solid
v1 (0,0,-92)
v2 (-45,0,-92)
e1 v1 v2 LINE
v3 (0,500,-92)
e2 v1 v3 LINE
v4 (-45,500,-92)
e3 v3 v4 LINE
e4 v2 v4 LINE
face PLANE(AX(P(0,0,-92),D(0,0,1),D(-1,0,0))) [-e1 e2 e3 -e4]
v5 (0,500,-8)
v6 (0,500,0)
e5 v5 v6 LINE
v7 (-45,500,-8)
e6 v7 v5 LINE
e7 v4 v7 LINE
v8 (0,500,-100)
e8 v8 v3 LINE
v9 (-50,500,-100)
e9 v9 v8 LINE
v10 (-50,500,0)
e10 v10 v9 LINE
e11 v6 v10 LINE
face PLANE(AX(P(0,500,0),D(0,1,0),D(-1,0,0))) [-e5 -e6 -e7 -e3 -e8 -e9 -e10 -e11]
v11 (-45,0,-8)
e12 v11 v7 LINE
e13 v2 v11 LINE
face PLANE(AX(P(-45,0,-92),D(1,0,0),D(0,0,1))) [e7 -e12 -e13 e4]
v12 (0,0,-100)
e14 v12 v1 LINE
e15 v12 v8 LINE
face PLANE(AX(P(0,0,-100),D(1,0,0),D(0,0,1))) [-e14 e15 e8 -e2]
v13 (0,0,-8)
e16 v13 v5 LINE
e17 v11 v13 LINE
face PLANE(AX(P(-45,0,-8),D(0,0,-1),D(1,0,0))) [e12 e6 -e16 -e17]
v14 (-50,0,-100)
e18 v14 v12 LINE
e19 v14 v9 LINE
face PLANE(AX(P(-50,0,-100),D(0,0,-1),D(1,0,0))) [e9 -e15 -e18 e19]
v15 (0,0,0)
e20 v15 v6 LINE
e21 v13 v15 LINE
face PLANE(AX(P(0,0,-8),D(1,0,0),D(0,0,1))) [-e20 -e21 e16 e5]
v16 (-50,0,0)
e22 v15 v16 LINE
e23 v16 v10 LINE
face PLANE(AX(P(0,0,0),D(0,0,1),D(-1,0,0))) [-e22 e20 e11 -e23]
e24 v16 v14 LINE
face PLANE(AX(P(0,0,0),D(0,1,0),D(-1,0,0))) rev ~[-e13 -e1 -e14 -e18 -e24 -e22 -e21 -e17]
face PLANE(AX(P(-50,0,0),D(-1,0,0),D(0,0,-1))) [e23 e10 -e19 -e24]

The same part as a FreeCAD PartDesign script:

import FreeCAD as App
import Part
import Sketcher
from FreeCAD import Vector
Q = App.Units.Quantity

doc = App.newDocument("Part")
body = doc.addObject("PartDesign::Body", "Body")

sketch1 = body.newObject("Sketcher::SketchObject", "Sketch")
sketch1.AttachmentSupport = (doc.getObject("XZ_Plane"), [""])
sketch1.MapMode = "FlatFace"
sketch1.addGeometry([
    Part.LineSegment(Vector(-50, 0, 0), Vector(0, 0, 0)),
    Part.LineSegment(Vector(0, 0, 0), Vector(0, -8, 0)),
    Part.LineSegment(Vector(0, -8, 0), Vector(-45, -8, 0)),
    Part.LineSegment(Vector(-45, -8, 0), Vector(-45, -92, 0)),
    Part.LineSegment(Vector(-45, -92, 0), Vector(0, -92, 0)),
    Part.LineSegment(Vector(0, -92, 0), Vector(0, -100, 0)),
    Part.LineSegment(Vector(0, -100, 0), Vector(-50, -100, 0)),
    Part.LineSegment(Vector(-50, -100, 0), Vector(-50, 0, 0)),
], False)
sketch1.addConstraint([
    Sketcher.Constraint("Coincident", 0, 2, 1, 1),
    Sketcher.Constraint("Coincident", 1, 2, 2, 1),
    Sketcher.Constraint("Coincident", 2, 2, 3, 1),
    Sketcher.Constraint("Coincident", 3, 2, 4, 1),
    Sketcher.Constraint("Coincident", 4, 2, 5, 1),
    Sketcher.Constraint("Coincident", 5, 2, 6, 1),
    Sketcher.Constraint("Coincident", 6, 2, 7, 1),
    Sketcher.Constraint("Coincident", 7, 2, 0, 1),
    Sketcher.Constraint("Horizontal", 0),
    Sketcher.Constraint("Vertical", 1),
    Sketcher.Constraint("Horizontal", 2),
    Sketcher.Constraint("Vertical", 3),
    Sketcher.Constraint("Horizontal", 4),
    Sketcher.Constraint("Vertical", 5),
    Sketcher.Constraint("Horizontal", 6),
    Sketcher.Constraint("Vertical", 7),
    Sketcher.Constraint("Coincident", 0, 2, -1, 1),
    Sketcher.Constraint("PointOnObject", 4, 2, -2),
    Sketcher.Constraint("Equal", 1, 5),
    Sketcher.Constraint("DistanceX", 0, 1, 0, 2, Q("50 mm")),
    Sketcher.Constraint("DistanceX", 2, 2, 2, 1, Q("45 mm")),
    Sketcher.Constraint("DistanceY", 1, 2, 1, 1, Q("8 mm")),
    Sketcher.Constraint("DistanceY", 3, 2, 3, 1, Q("84 mm")),
])
pad1 = body.newObject("PartDesign::Pad", "Pad")
pad1.Profile = sketch1
pad1.Length = 500
pad1.Reversed = True

doc.recompute()
